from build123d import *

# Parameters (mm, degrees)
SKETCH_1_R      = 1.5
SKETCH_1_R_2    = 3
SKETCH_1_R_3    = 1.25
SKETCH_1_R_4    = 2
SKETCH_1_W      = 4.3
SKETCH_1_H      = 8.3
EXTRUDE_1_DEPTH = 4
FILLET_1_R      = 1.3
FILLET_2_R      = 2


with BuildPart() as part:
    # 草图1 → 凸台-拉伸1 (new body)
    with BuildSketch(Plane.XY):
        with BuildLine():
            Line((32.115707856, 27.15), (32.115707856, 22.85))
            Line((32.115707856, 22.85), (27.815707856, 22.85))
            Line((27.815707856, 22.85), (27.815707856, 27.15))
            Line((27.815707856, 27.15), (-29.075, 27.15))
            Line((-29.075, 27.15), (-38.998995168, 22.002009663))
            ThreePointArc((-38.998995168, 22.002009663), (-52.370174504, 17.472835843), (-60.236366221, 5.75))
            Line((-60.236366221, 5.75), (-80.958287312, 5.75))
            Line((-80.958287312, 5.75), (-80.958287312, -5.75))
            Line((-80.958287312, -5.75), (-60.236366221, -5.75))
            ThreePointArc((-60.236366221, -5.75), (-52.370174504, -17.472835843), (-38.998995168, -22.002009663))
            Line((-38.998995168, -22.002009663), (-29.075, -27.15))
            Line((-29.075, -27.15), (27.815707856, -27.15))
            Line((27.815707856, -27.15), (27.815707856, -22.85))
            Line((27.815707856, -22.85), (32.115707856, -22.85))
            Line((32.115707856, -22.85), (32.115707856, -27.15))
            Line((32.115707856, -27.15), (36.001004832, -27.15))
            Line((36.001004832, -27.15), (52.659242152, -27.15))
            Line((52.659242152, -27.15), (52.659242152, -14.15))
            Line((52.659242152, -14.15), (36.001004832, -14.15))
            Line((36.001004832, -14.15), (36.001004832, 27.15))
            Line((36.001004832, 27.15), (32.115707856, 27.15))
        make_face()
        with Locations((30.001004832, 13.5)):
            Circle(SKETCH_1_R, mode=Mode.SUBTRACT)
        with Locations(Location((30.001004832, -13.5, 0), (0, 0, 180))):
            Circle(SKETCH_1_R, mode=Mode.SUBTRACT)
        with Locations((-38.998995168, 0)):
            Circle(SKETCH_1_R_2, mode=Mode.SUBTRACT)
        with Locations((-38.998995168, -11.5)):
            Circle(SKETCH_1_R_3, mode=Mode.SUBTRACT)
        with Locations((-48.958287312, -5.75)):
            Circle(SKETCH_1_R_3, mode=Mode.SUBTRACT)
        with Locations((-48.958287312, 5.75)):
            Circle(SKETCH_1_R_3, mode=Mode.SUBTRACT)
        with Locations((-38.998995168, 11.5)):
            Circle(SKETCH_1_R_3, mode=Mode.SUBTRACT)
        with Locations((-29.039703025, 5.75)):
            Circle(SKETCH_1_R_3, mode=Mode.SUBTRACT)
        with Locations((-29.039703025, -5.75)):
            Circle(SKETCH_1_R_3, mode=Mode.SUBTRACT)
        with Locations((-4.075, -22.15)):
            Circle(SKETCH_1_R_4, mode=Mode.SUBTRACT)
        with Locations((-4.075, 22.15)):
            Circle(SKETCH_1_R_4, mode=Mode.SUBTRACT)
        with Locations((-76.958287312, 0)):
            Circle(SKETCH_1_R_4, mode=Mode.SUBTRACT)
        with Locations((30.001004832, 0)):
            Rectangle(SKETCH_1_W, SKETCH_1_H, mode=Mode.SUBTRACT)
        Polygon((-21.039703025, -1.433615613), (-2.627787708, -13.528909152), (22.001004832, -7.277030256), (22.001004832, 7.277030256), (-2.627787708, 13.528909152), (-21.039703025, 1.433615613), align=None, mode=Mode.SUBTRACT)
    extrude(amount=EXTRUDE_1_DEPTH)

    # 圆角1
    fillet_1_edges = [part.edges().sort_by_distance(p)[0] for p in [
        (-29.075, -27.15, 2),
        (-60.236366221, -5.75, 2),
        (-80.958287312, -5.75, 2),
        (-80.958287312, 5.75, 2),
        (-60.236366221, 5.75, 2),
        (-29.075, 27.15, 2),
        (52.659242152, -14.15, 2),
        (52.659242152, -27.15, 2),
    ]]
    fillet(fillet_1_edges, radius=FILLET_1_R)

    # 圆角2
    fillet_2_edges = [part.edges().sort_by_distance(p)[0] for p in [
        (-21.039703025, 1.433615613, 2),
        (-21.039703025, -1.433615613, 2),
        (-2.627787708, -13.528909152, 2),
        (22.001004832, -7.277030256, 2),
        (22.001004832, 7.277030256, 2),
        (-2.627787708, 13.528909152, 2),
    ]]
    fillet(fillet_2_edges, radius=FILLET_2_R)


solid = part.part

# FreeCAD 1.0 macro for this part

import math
import FreeCAD as App
import Part
import Sketcher


def edges_at(feature, points):
    """Names of the edges that pass closest to the given points."""
    edges = feature.Shape.Edges
    near = lambda p: min(range(len(edges)), key=lambda i: edges[i].distToShape(Part.Vertex(*p))[0])
    return sorted({f"Edge{near(p) + 1}" for p in points})

doc = App.newDocument("Part")
body = doc.addObject("PartDesign::Body", "Body")

# Sketch on XY plane
sketch1 = body.newObject("Sketcher::SketchObject", "Sketch")
sketch1.AttachmentSupport = (doc.getObject("XY_Plane"), [""])
sketch1.MapMode = "FlatFace"
sketch1.addGeometry([
    Part.LineSegment(App.Vector(32.1, 27.1, 0), App.Vector(32.1, 22.9, 0)),  # 0
    Part.LineSegment(App.Vector(32.1, 22.9, 0), App.Vector(27.8, 22.9, 0)),  # 1
    Part.LineSegment(App.Vector(27.8, 22.9, 0), App.Vector(27.8, 27.1, 0)),  # 2
    Part.LineSegment(App.Vector(27.8, 27.1, 0), App.Vector(-29.1, 27.1, 0)),  # 3
    Part.LineSegment(App.Vector(-29.1, 27.1, 0), App.Vector(-39, 22, 0)),  # 4
    Part.ArcOfCircle(Part.Circle(App.Vector(-39, 0, 0), App.Vector(0, 0, 1), 22), math.radians(90), math.radians(165)),  # 5
    Part.LineSegment(App.Vector(-60.2, 5.8, 0), App.Vector(-81, 5.8, 0)),  # 6
    Part.LineSegment(App.Vector(-81, 5.8, 0), App.Vector(-81, -5.8, 0)),  # 7
    Part.LineSegment(App.Vector(-81, -5.8, 0), App.Vector(-60.2, -5.8, 0)),  # 8
    Part.ArcOfCircle(Part.Circle(App.Vector(-39, 0, 0), App.Vector(0, 0, 1), 22), math.radians(-165), math.radians(-90)),  # 9
    Part.LineSegment(App.Vector(-39, -22, 0), App.Vector(-29.1, -27.1, 0)),  # 10
    Part.LineSegment(App.Vector(-29.1, -27.1, 0), App.Vector(27.8, -27.1, 0)),  # 11
    Part.LineSegment(App.Vector(27.8, -27.1, 0), App.Vector(27.8, -22.9, 0)),  # 12
    Part.LineSegment(App.Vector(27.8, -22.9, 0), App.Vector(32.1, -22.9, 0)),  # 13
    Part.LineSegment(App.Vector(32.1, -22.9, 0), App.Vector(32.1, -27.1, 0)),  # 14
    Part.LineSegment(App.Vector(32.1, -27.1, 0), App.Vector(52.7, -27.1, 0)),  # 15
    Part.LineSegment(App.Vector(52.7, -27.1, 0), App.Vector(52.7, -14.2, 0)),  # 16
    Part.LineSegment(App.Vector(52.7, -14.2, 0), App.Vector(36, -14.2, 0)),  # 17
    Part.LineSegment(App.Vector(36, -14.2, 0), App.Vector(36, 27.1, 0)),  # 18
    Part.LineSegment(App.Vector(36, 27.1, 0), App.Vector(32.1, 27.1, 0)),  # 19
    Part.Circle(App.Vector(-77, 0, 0), App.Vector(0, 0, 1), 2),  # 20
    Part.Circle(App.Vector(-39, -11.5, 0), App.Vector(0, 0, 1), 1.2),  # 21
    Part.Circle(App.Vector(-49, -5.8, 0), App.Vector(0, 0, 1), 1.2),  # 22
    Part.Circle(App.Vector(-39, 0, 0), App.Vector(0, 0, 1), 3),  # 23
    Part.Circle(App.Vector(-29, -5.8, 0), App.Vector(0, 0, 1), 1.2),  # 24
    Part.Circle(App.Vector(-4.1, -22.1, 0), App.Vector(0, 0, 1), 2),  # 25
    Part.Circle(App.Vector(30, -13.5, 0), App.Vector(0, 0, 1), 1.5),  # 26
    Part.LineSegment(App.Vector(-2.6, -13.5, 0), App.Vector(-21, -1.4, 0)),  # 27
    Part.LineSegment(App.Vector(-21, -1.4, 0), App.Vector(-21, 1.4, 0)),  # 28
    Part.LineSegment(App.Vector(-21, 1.4, 0), App.Vector(-2.6, 13.5, 0)),  # 29
    Part.LineSegment(App.Vector(-2.6, 13.5, 0), App.Vector(22, 7.3, 0)),  # 30
    Part.LineSegment(App.Vector(22, 7.3, 0), App.Vector(22, -7.3, 0)),  # 31
    Part.LineSegment(App.Vector(22, -7.3, 0), App.Vector(-2.6, -13.5, 0)),  # 32
    Part.LineSegment(App.Vector(32.2, -4.2, 0), App.Vector(27.9, -4.2, 0)),  # 33
    Part.LineSegment(App.Vector(27.9, -4.2, 0), App.Vector(27.9, 4.2, 0)),  # 34
    Part.LineSegment(App.Vector(27.9, 4.2, 0), App.Vector(32.2, 4.2, 0)),  # 35
    Part.LineSegment(App.Vector(32.2, 4.2, 0), App.Vector(32.2, -4.2, 0)),  # 36
    Part.Circle(App.Vector(-49, 5.8, 0), App.Vector(0, 0, 1), 1.2),  # 37
    Part.Circle(App.Vector(-29, 5.8, 0), App.Vector(0, 0, 1), 1.2),  # 38
    Part.Circle(App.Vector(-39, 11.5, 0), App.Vector(0, 0, 1), 1.2),  # 39
    Part.Circle(App.Vector(-4.1, 22.1, 0), App.Vector(0, 0, 1), 2),  # 40
    Part.Circle(App.Vector(30, 13.5, 0), App.Vector(0, 0, 1), 1.5),  # 41
], False)
sketch1.addConstraint([
    Sketcher.Constraint("Coincident", 0, 2, 1, 1),
    Sketcher.Constraint("Coincident", 1, 2, 2, 1),
    Sketcher.Constraint("Coincident", 2, 2, 3, 1),
    Sketcher.Constraint("Coincident", 3, 2, 4, 1),
    Sketcher.Constraint("Coincident", 4, 2, 5, 1),
    Sketcher.Constraint("Coincident", 5, 2, 6, 1),
    Sketcher.Constraint("Coincident", 6, 2, 7, 1),
    Sketcher.Constraint("Coincident", 7, 2, 8, 1),
    Sketcher.Constraint("Coincident", 8, 2, 9, 1),
    Sketcher.Constraint("Coincident", 9, 2, 10, 1),
    Sketcher.Constraint("Coincident", 10, 2, 11, 1),
    Sketcher.Constraint("Coincident", 11, 2, 12, 1),
    Sketcher.Constraint("Coincident", 12, 2, 13, 1),
    Sketcher.Constraint("Coincident", 13, 2, 14, 1),
    Sketcher.Constraint("Coincident", 14, 2, 15, 1),
    Sketcher.Constraint("Coincident", 15, 2, 16, 1),
    Sketcher.Constraint("Coincident", 16, 2, 17, 1),
    Sketcher.Constraint("Coincident", 17, 2, 18, 1),
    Sketcher.Constraint("Coincident", 18, 2, 19, 1),
    Sketcher.Constraint("Coincident", 19, 2, 0, 1),
    Sketcher.Constraint("Coincident", 27, 2, 28, 1),
    Sketcher.Constraint("Coincident", 28, 2, 29, 1),
    Sketcher.Constraint("Coincident", 29, 2, 30, 1),
    Sketcher.Constraint("Coincident", 30, 2, 31, 1),
    Sketcher.Constraint("Coincident", 31, 2, 32, 1),
    Sketcher.Constraint("Coincident", 32, 2, 27, 1),
    Sketcher.Constraint("Coincident", 33, 2, 34, 1),
    Sketcher.Constraint("Coincident", 34, 2, 35, 1),
    Sketcher.Constraint("Coincident", 35, 2, 36, 1),
    Sketcher.Constraint("Coincident", 36, 2, 33, 1),
    Sketcher.Constraint("Vertical", 0),
    Sketcher.Constraint("Horizontal", 1),
    Sketcher.Constraint("Vertical", 2),
    Sketcher.Constraint("Horizontal", 3),
    Sketcher.Constraint("Horizontal", 6),
    Sketcher.Constraint("Vertical", 7),
    Sketcher.Constraint("Horizontal", 8),
    Sketcher.Constraint("Horizontal", 11),
    Sketcher.Constraint("Vertical", 12),
    Sketcher.Constraint("Horizontal", 13),
    Sketcher.Constraint("Vertical", 14),
    Sketcher.Constraint("Horizontal", 15),
    Sketcher.Constraint("Vertical", 16),
    Sketcher.Constraint("Horizontal", 17),
    Sketcher.Constraint("Vertical", 18),
    Sketcher.Constraint("Horizontal", 19),
    Sketcher.Constraint("Vertical", 28),
    Sketcher.Constraint("Vertical", 31),
    Sketcher.Constraint("Horizontal", 33),
    Sketcher.Constraint("Vertical", 34),
    Sketcher.Constraint("Horizontal", 35),
    Sketcher.Constraint("Vertical", 36),
    Sketcher.Constraint("Coincident", 9, 3, 5, 3),
    Sketcher.Constraint("Coincident", 23, 3, 5, 3),
    Sketcher.Constraint("Equal", 5, 9),
    Sketcher.Constraint("Equal", 21, 22),
    Sketcher.Constraint("Equal", 22, 24),
    Sketcher.Constraint("Equal", 20, 25),
    Sketcher.Constraint("Equal", 24, 37),
    Sketcher.Constraint("Equal", 37, 38),
    Sketcher.Constraint("Equal", 38, 39),
    Sketcher.Constraint("Equal", 25, 40),
    Sketcher.Constraint("Equal", 26, 41),
    Sketcher.Constraint("Symmetric", 22, 3, 37, 3, -1),
    Sketcher.Constraint("Symmetric", 24, 3, 38, 3, -1),
    Sketcher.Constraint("Symmetric", 21, 3, 39, 3, -1),
    Sketcher.Constraint("Symmetric", 25, 3, 40, 3, -1),
    Sketcher.Constraint("Symmetric", 26, 3, 41, 3, -1),
    Sketcher.Constraint("Symmetric", 5, 2, 8, 2, -1),
    Sketcher.Constraint("Symmetric", 3, 2, 10, 2, -1),
    Sketcher.Constraint("Symmetric", 1, 2, 12, 2, -1),
    Sketcher.Constraint("Symmetric", 14, 2, 19, 2, -1),
    Sketcher.Constraint("Symmetric", 29, 2, 32, 2, -1),
    Sketcher.Constraint("PointOnObject", 20, 3, -1),
    Sketcher.Constraint("Horizontal", 22, 3, 24, 3),
    Sketcher.Constraint("Horizontal", 38, 3, 5, 2),
    Sketcher.Constraint("Horizontal", 11, 2, 14, 2),
    Sketcher.Constraint("Vertical", 9, 3, 21, 3),
    Sketcher.Constraint("Vertical", 39, 3, 4, 2),
    Sketcher.Constraint("Vertical", 4, 2, 9, 2),
    Sketcher.Constraint("Equal", 13, 33),
    Sketcher.Constraint("Equal", 35, 0),
    Sketcher.Constraint("Equal", 27, 29),
    Sketcher.Constraint("Equal", 30, 32),
    Sketcher.Constraint("Diameter", 20, 4.0),
    Sketcher.Constraint("Diameter", 23, 6.0),
    Sketcher.Constraint("Diameter", 26, 3.0),
    Sketcher.Constraint("Diameter", 21, 2.5),
    Sketcher.Constraint("DistanceY", 16, 1, 16, 2, 13.0),
    Sketcher.Constraint("DistanceX", 1, 2, 1, 1, 4.3),
    Sketcher.Constraint("DistanceY", 7, 2, 7, 1, 11.5),
    Sketcher.Constraint("DistanceY", 18, 1, 18, 2, 41.3),
    Sketcher.Constraint("DistanceY", 34, 1, 34, 2, 8.3),
    Sketcher.Constraint("DistanceX", 20, 3, 22, 3, 28.0),
    Sketcher.Constraint("DistanceX", 21, 3, 26, 3, 69.0),
    Sketcher.Constraint("DistanceY", 26, 3, 21, 3, 2.0),
    Sketcher.Constraint("DistanceY", 26, 3, 41, 3, 27.0),
    Sketcher.Constraint("DistanceY", 25, 3, 0, 2, 45.0),
    Sketcher.Constraint("DistanceX", 3, 2, 40, 3, 25.0),
    Sketcher.Constraint("DistanceX", 6, 2, 20, 3, 4.0),
    Sketcher.Constraint("DistanceX", 26, 3, 17, 2, 6.0),
    Sketcher.Constraint("DistanceX", 24, 3, 27, 2, 8.0),
    Sketcher.Constraint("DistanceX", 30, 2, 41, 3, 8.0),
    Sketcher.Constraint("DistanceY", 17, 2, 33, 2, 10.0),
    Sketcher.Constraint("Radius", 5, 22.00201),
    Sketcher.Constraint("DistanceX", 31, 2, 33, 2, 5.85),
    Sketcher.Constraint("DistanceX", 25, 3, -1, 1, 4.075),
    Sketcher.Constraint("DistanceX", 6, 2, 6, 1, 20.721921),
    Sketcher.Constraint("DistanceY", 28, 1, 28, 2, 2.867231),
    Sketcher.Constraint("DistanceY", 31, 2, 31, 1, 14.554061),
    Sketcher.Constraint("Distance", 4, 11.17978),
    Sketcher.Constraint("DistanceX", 3, 2, 3, 1, 56.890708),
    Sketcher.Constraint("DistanceX", 15, 1, 15, 2, 20.543534),
    Sketcher.Constraint("DistanceY", -1, 1, 29, 2, 13.528909),
    Sketcher.Constraint("DistanceX", 38, 3, 0, 2, 61.155411),
    Sketcher.Constraint("Distance", 27, 22.029407),
])
pad1 = body.newObject("PartDesign::Pad", "Pad")
pad1.Profile = sketch1
pad1.Length = 4
doc.recompute()

fillet = body.newObject("PartDesign::Fillet", "Fillet")
fillet.Base = (pad1, edges_at(pad1, [
    (-29.075, -27.15, 2),
    (-60.236, -5.75, 2),
    (-80.958, -5.75, 2),
    (-80.958, 5.75, 2),
    (-60.236, 5.75, 2),
    (-29.075, 27.15, 2),
    (52.659, -14.15, 2),
    (52.659, -27.15, 2),
]))
fillet.Radius = 1.3
doc.recompute()

fillet2 = body.newObject("PartDesign::Fillet", "Fillet001")
fillet2.Base = (fillet, edges_at(fillet, [
    (-21.04, 1.434, 2),
    (-21.04, -1.434, 2),
    (-2.628, -13.529, 2),
    (22.001, -7.277, 2),
    (22.001, 7.277, 2),
    (-2.628, 13.529, 2),
]))
fillet2.Radius = 2

doc.recompute()
